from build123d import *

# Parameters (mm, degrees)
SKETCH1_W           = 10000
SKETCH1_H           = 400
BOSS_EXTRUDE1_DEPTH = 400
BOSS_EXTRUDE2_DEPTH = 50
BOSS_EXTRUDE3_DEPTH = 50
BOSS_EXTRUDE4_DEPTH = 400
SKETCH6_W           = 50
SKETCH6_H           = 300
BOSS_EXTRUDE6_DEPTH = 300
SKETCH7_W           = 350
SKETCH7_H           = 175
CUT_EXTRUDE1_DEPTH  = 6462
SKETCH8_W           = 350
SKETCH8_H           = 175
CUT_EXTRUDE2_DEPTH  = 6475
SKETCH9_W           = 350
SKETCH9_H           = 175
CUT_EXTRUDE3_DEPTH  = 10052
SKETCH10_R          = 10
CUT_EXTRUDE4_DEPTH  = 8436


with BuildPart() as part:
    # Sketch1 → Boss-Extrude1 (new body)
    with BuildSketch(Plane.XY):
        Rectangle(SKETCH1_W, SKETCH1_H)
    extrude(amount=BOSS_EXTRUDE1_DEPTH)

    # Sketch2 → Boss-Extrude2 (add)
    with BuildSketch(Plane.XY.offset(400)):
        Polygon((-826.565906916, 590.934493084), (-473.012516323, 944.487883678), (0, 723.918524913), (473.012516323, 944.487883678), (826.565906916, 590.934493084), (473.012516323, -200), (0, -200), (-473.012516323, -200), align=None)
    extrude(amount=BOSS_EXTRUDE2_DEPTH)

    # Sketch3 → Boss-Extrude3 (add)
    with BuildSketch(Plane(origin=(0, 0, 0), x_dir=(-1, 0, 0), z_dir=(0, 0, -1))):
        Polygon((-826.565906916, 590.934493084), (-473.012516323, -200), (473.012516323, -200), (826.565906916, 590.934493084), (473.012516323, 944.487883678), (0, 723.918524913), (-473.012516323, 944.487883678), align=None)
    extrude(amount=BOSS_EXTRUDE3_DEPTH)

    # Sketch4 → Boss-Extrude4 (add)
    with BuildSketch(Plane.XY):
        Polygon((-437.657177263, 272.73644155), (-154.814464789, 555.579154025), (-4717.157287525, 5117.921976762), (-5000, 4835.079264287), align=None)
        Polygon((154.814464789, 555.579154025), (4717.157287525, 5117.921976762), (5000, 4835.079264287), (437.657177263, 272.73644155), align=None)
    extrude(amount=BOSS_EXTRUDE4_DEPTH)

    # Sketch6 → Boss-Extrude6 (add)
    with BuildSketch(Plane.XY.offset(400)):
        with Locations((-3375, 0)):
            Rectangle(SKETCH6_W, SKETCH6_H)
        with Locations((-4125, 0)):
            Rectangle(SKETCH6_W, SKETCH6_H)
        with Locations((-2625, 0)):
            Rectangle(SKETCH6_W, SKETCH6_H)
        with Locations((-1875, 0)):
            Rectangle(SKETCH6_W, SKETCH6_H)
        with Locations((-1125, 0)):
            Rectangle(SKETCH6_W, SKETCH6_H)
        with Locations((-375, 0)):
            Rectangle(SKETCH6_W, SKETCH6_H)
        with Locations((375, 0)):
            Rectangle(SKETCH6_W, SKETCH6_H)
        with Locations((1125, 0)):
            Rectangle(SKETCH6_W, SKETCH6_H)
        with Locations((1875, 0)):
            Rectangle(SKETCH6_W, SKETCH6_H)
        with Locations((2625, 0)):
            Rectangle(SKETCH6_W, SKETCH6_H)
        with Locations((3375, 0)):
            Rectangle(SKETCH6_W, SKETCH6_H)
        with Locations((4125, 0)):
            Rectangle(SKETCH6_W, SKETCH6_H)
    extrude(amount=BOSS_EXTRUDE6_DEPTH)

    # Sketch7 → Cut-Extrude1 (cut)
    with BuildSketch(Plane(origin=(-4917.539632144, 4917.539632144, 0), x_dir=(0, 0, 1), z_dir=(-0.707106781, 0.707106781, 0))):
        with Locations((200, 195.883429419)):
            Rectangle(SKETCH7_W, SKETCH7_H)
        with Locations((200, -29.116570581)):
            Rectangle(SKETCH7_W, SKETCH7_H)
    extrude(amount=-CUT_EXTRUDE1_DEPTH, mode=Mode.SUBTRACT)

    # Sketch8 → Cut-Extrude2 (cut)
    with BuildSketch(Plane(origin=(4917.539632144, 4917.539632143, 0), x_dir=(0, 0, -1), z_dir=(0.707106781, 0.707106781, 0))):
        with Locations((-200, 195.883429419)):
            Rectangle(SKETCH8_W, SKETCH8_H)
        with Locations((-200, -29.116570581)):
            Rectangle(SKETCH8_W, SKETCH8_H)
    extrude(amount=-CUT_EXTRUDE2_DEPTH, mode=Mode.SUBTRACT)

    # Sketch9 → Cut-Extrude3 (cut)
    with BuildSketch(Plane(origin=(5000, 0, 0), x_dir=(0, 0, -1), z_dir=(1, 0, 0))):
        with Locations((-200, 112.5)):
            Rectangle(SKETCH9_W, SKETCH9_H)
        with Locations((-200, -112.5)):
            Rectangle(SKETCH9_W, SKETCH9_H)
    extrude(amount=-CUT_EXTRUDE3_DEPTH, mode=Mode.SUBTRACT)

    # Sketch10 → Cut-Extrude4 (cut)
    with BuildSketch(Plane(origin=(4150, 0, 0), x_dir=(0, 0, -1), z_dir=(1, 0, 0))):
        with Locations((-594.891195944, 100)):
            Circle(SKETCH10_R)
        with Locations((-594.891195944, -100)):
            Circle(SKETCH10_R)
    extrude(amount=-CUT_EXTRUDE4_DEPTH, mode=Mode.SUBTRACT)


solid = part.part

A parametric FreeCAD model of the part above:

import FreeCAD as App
import Part
import Sketcher
Q = App.Units.Quantity


def add_polygon(sketch, points):
    """Adds a closed chain of lines whose ends are joined by coincident constraints."""
    first, n = sketch.GeometryCount, len(points)
    for a, b in zip(points, points[1:] + points[:1]):
        sketch.addGeometry(Part.LineSegment(App.Vector(*a, 0), App.Vector(*b, 0)), False)
    for i in range(n):
        sketch.addConstraint(Sketcher.Constraint("Coincident", first + i, 2, first + (i + 1) % n, 1))

doc = App.newDocument("Part")
body = doc.addObject("PartDesign::Body", "Body")

# Sketch on XY plane
sketch1 = body.newObject("Sketcher::SketchObject", "Sketch")
sketch1.AttachmentSupport = (doc.getObject("XY_Plane"), [""])
sketch1.MapMode = "FlatFace"
add_polygon(sketch1, [(-5000, 200), (-5000, -200), (5000, -200), (5000, 200)])  # lines 0-3
sketch1.addConstraint([
    Sketcher.Constraint("Vertical", 0),
    Sketcher.Constraint("Horizontal", 1),
    Sketcher.Constraint("Vertical", 2),
    Sketcher.Constraint("Horizontal", 3),
    Sketcher.Constraint("Symmetric", 0, 2, 2, 2, -1, 1),
    Sketcher.Constraint("DistanceX", 1, 1, 1, 2, Q("10000 mm")),
    Sketcher.Constraint("DistanceY", 0, 2, 0, 1, Q("400 mm")),
])
pad1 = body.newObject("PartDesign::Pad", "Pad")
pad1.Profile = sketch1
pad1.Length = 400

# Sketch on XY plane
sketch2 = body.newObject("Sketcher::SketchObject", "Sketch001")
sketch2.AttachmentSupport = (doc.getObject("XY_Plane"), [""])
sketch2.MapMode = "FlatFace"
sketch2.AttachmentOffset = App.Placement(App.Vector(0, 0, 400), App.Rotation())
add_polygon(sketch2, [(-473, 944), (-827, 591), (-473, -200), (473, -200), (827, 591), (473, 944), (0, 724)])  # lines 0-6
sketch2.addConstraint([
    Sketcher.Constraint("Horizontal", 2),
    Sketcher.Constraint("Symmetric", 0, 2, 3, 2, -2),
    Sketcher.Constraint("Symmetric", 4, 2, 6, 2, -2),
    Sketcher.Constraint("PointOnObject", 5, 2, -2),
    Sketcher.Constraint("Perpendicular", 0, 4),
    Sketcher.Constraint("Vertical", 2, 2, 4, 2),
    Sketcher.Constraint("Vertical", 1, 2, 6, 2),
    Sketcher.Constraint("Angle", 5, Q("-155 deg")),
    Sketcher.Constraint("Distance", 0, Q("500 mm")),
    Sketcher.Constraint("DistanceY", 1, 2, -1, 1, Q("200 mm")),
    Sketcher.Constraint("DistanceX", 2, 1, 2, 2, Q("946.025033 mm")),
    Sketcher.Constraint("Distance", 1, Q("866.358686 mm")),
])
pad2 = body.newObject("PartDesign::Pad", "Pad001")
pad2.Profile = sketch2
pad2.Length = 50

# Sketch on XY plane
sketch3 = body.newObject("Sketcher::SketchObject", "Sketch002")
sketch3.AttachmentSupport = (doc.getObject("XY_Plane"), [""])
sketch3.MapMode = "FlatFace"
add_polygon(sketch3, [(827, 591), (473, -200), (-473, -200), (-827, 591), (-473, 944), (0, 724), (473, 944)])  # lines 0-6
sketch3.addConstraint([
    Sketcher.Constraint("Horizontal", 1),
    Sketcher.Constraint("Symmetric", 3, 2, 5, 2, -2),
    Sketcher.Constraint("Symmetric", 2, 2, 6, 2, -2),
    Sketcher.Constraint("PointOnObject", 4, 2, -2),
    Sketcher.Constraint("Perpendicular", 3, 6),
    Sketcher.Constraint("Vertical", 1, 2, 3, 2),
    Sketcher.Constraint("Vertical", 0, 2, 5, 2),
    Sketcher.Constraint("Angle", 4, Q("-25 deg")),
    Sketcher.Constraint("Distance", 3, Q("500 mm")),
    Sketcher.Constraint("DistanceY", 0, 2, -1, 1, Q("200 mm")),
    Sketcher.Constraint("DistanceX", 1, 2, 1, 1, Q("946.025033 mm")),
    Sketcher.Constraint("Distance", 0, Q("866.358686 mm")),
])
pad3 = body.newObject("PartDesign::Pad", "Pad002")
pad3.Profile = sketch3
pad3.Length = 50
pad3.Reversed = True

# Sketch on XY plane
sketch4 = body.newObject("Sketcher::SketchObject", "Sketch003")
sketch4.AttachmentSupport = (doc.getObject("XY_Plane"), [""])
sketch4.MapMode = "FlatFace"
add_polygon(sketch4, [(-438, 273), (-155, 556), (-4717, 5118), (-5000, 4835)])  # lines 0-3
add_polygon(sketch4, [(4717, 5118), (155, 556), (438, 273), (5000, 4835)])  # lines 4-7
sketch4.addConstraint([
    Sketcher.Constraint("Symmetric", 0, 2, 4, 2, -2),
    Sketcher.Constraint("Symmetric", 3, 2, 5, 2, -2),
    Sketcher.Constraint("Symmetric", 2, 2, 6, 2, -2),
    Sketcher.Constraint("Symmetric", 1, 2, 7, 2, -2),
    Sketcher.Constraint("Perpendicular", 0, 1),
    Sketcher.Constraint("Perpendicular", 1, 2),
    Sketcher.Constraint("Perpendicular", 2, 3),
    Sketcher.Constraint("Perpendicular", 3, 4),
    Sketcher.Constraint("Distance", 0, Q("400 mm")),
    Sketcher.Constraint("DistanceX", 2, 2, -1, 1, Q("5000 mm")),
    Sketcher.Constraint("DistanceY", -1, 1, 3, 2, Q("272.736442 mm")),
    Sketcher.Constraint("DistanceY", 0, 2, 2, 2, Q("4279.50011 mm")),
])
pad4 = body.newObject("PartDesign::Pad", "Pad003")
pad4.Profile = sketch4
pad4.Length = 400

# Sketch on XY plane
sketch5 = body.newObject("Sketcher::SketchObject", "Sketch004")
sketch5.AttachmentSupport = (doc.getObject("XY_Plane"), [""])
sketch5.MapMode = "FlatFace"
sketch5.AttachmentOffset = App.Placement(App.Vector(0, 0, 400), App.Rotation())
add_polygon(sketch5, [(-3400, 150), (-3400, -150), (-3350, -150), (-3350, 150)])  # lines 0-3
add_polygon(sketch5, [(-4150, 150), (-4150, -150), (-4100, -150), (-4100, 150)])  # lines 4-7
add_polygon(sketch5, [(-2650, 150), (-2650, -150), (-2600, -150), (-2600, 150)])  # lines 8-11
add_polygon(sketch5, [(-1900, 150), (-1900, -150), (-1850, -150), (-1850, 150)])  # lines 12-15
add_polygon(sketch5, [(-1150, 150), (-1150, -150), (-1100, -150), (-1100, 150)])  # lines 16-19
add_polygon(sketch5, [(-400, 150), (-400, -150), (-350, -150), (-350, 150)])  # lines 20-23
add_polygon(sketch5, [(350, 150), (350, -150), (400, -150), (400, 150)])  # lines 24-27
add_polygon(sketch5, [(1100, 150), (1100, -150), (1150, -150), (1150, 150)])  # lines 28-31
add_polygon(sketch5, [(1850, 150), (1850, -150), (1900, -150), (1900, 150)])  # lines 32-35
add_polygon(sketch5, [(2600, 150), (2600, -150), (2650, -150), (2650, 150)])  # lines 36-39
add_polygon(sketch5, [(3350, 150), (3350, -150), (3400, -150), (3400, 150)])  # lines 40-43
add_polygon(sketch5, [(4100, 150), (4100, -150), (4150, -150), (4150, 150)])  # lines 44-47
sketch5.addConstraint([
    Sketcher.Constraint("Vertical", 0),
    Sketcher.Constraint("Horizontal", 1),
    Sketcher.Constraint("Vertical", 2),
    Sketcher.Constraint("Horizontal", 3),
    Sketcher.Constraint("Vertical", 4),
    Sketcher.Constraint("Horizontal", 5),
    Sketcher.Constraint("Vertical", 6),
    Sketcher.Constraint("Horizontal", 7),
    Sketcher.Constraint("Vertical", 8),
    Sketcher.Constraint("Horizontal", 9),
    Sketcher.Constraint("Vertical", 10),
    Sketcher.Constraint("Horizontal", 11),
    Sketcher.Constraint("Vertical", 12),
    Sketcher.Constraint("Horizontal", 13),
    Sketcher.Constraint("Vertical", 14),
    Sketcher.Constraint("Horizontal", 15),
    Sketcher.Constraint("Vertical", 16),
    Sketcher.Constraint("Horizontal", 17),
    Sketcher.Constraint("Vertical", 18),
    Sketcher.Constraint("Horizontal", 19),
    Sketcher.Constraint("Vertical", 20),
    Sketcher.Constraint("Horizontal", 21),
    Sketcher.Constraint("Vertical", 22),
    Sketcher.Constraint("Horizontal", 23),
    Sketcher.Constraint("Vertical", 24),
    Sketcher.Constraint("Horizontal", 25),
    Sketcher.Constraint("Vertical", 26),
    Sketcher.Constraint("Horizontal", 27),
    Sketcher.Constraint("Vertical", 28),
    Sketcher.Constraint("Horizontal", 29),
    Sketcher.Constraint("Vertical", 30),
    Sketcher.Constraint("Horizontal", 31),
    Sketcher.Constraint("Vertical", 32),
    Sketcher.Constraint("Horizontal", 33),
    Sketcher.Constraint("Vertical", 34),
    Sketcher.Constraint("Horizontal", 35),
    Sketcher.Constraint("Vertical", 36),
    Sketcher.Constraint("Horizontal", 37),
    Sketcher.Constraint("Vertical", 38),
    Sketcher.Constraint("Horizontal", 39),
    Sketcher.Constraint("Vertical", 40),
    Sketcher.Constraint("Horizontal", 41),
    Sketcher.Constraint("Vertical", 42),
    Sketcher.Constraint("Horizontal", 43),
    Sketcher.Constraint("Vertical", 44),
    Sketcher.Constraint("Horizontal", 45),
    Sketcher.Constraint("Vertical", 46),
    Sketcher.Constraint("Horizontal", 47),
    Sketcher.Constraint("Symmetric", 22, 2, 24, 2, -1, 1),
    Sketcher.Constraint("Symmetric", 20, 2, 26, 2, -1, 1),
    Sketcher.Constraint("Symmetric", 18, 2, 28, 2, -1, 1),
    Sketcher.Constraint("Symmetric", 16, 2, 30, 2, -1, 1),
    Sketcher.Constraint("Symmetric", 14, 2, 32, 2, -1, 1),
    Sketcher.Constraint("Symmetric", 12, 2, 34, 2, -1, 1),
    Sketcher.Constraint("Symmetric", 10, 2, 36, 2, -1, 1),
    Sketcher.Constraint("Symmetric", 8, 2, 38, 2, -1, 1),
    Sketcher.Constraint("Symmetric", 2, 2, 40, 2, -1, 1),
    Sketcher.Constraint("Symmetric", 0, 2, 42, 2, -1, 1),
    Sketcher.Constraint("Symmetric", 6, 2, 44, 2, -1, 1),
    Sketcher.Constraint("Symmetric", 4, 2, 46, 2, -1, 1),
    Sketcher.Constraint("Horizontal", 1, 2, 4, 2),
    Sketcher.Constraint("Horizontal", 3, 2, 6, 2),
    Sketcher.Constraint("Horizontal", 5, 2, 8, 2),
    Sketcher.Constraint("Horizontal", 7, 2, 10, 2),
    Sketcher.Constraint("Horizontal", 9, 2, 12, 2),
    Sketcher.Constraint("Horizontal", 11, 2, 14, 2),
    Sketcher.Constraint("Horizontal", 13, 2, 16, 2),
    Sketcher.Constraint("Horizontal", 15, 2, 18, 2),
    Sketcher.Constraint("Horizontal", 17, 2, 20, 2),
    Sketcher.Constraint("Horizontal", 19, 2, 22, 2),
    Sketcher.Constraint("Horizontal", 21, 2, 24, 2),
    Sketcher.Constraint("Equal", 3, 5),
    Sketcher.Constraint("Equal", 7, 9),
    Sketcher.Constraint("Equal", 11, 13),
    Sketcher.Constraint("Equal", 15, 17),
    Sketcher.Constraint("Equal", 19, 21),
    Sketcher.Constraint("DistanceX", 1, 1, 1, 2, Q("50 mm")),
    Sketcher.Constraint("DistanceY", 0, 2, 0, 1, Q("300 mm")),
    Sketcher.Constraint("DistanceX", 0, 2, -1, 1, Q("3400 mm")),
    Sketcher.Constraint("DistanceX", 4, 2, -1, 1, Q("4150 mm")),
    Sketcher.Constraint("DistanceX", 8, 2, -1, 1, Q("2650 mm")),
    Sketcher.Constraint("DistanceX", 12, 2, -1, 1, Q("1900 mm")),
    Sketcher.Constraint("DistanceX", 16, 2, -1, 1, Q("1150 mm")),
    Sketcher.Constraint("DistanceX", 20, 2, -1, 1, Q("400 mm")),
])
pad5 = body.newObject("PartDesign::Pad", "Pad004")
pad5.Profile = sketch5
pad5.Length = 300

# Sketch on an angled plane
sketch6 = body.newObject("Sketcher::SketchObject", "Sketch005")
sketch6.Placement = App.Placement(App.Vector(-4917.539632, 4917.539632, 0), App.Rotation(App.Vector(0, 0, 1), App.Vector(0.707106781, 0.707106781, 0), App.Vector(-0.707106781, 0.707106781, 0), "ZXY"))
add_polygon(sketch6, [(25, 283), (25, 108), (375, 108), (375, 283)])  # lines 0-3
add_polygon(sketch6, [(25, 58), (25, -117), (375, -117), (375, 58)])  # lines 4-7
sketch6.addConstraint([
    Sketcher.Constraint("Vertical", 0),
    Sketcher.Constraint("Horizontal", 1),
    Sketcher.Constraint("Vertical", 2),
    Sketcher.Constraint("Horizontal", 3),
    Sketcher.Constraint("Vertical", 4),
    Sketcher.Constraint("Horizontal", 5),
    Sketcher.Constraint("Vertical", 6),
    Sketcher.Constraint("Horizontal", 7),
    Sketcher.Constraint("Vertical", 3, 2, 4, 2),
    Sketcher.Constraint("Vertical", 2, 2, 5, 2),
    Sketcher.Constraint("Equal", 2, 4),
    Sketcher.Constraint("DistanceX", 1, 1, 1, 2, Q("350 mm")),
    Sketcher.Constraint("DistanceY", 0, 2, 0, 1, Q("175 mm")),
    Sketcher.Constraint("DistanceX", -1, 1, 0, 2, Q("25 mm")),
    Sketcher.Constraint("DistanceY", 4, 2, 0, 2, Q("225 mm")),
    Sketcher.Constraint("DistanceY", -1, 1, 0, 2, Q("108.383429 mm")),
])
pocket1 = body.newObject("PartDesign::Pocket", "Pocket")
pocket1.Profile = sketch6
pocket1.Length = 6462

# Sketch on an angled plane
sketch7 = body.newObject("Sketcher::SketchObject", "Sketch006")
sketch7.Placement = App.Placement(App.Vector(4917.539632, 4917.539632, 0), App.Rotation(App.Vector(0, 0, -1), App.Vector(-0.707106781, 0.707106781, 0), App.Vector(0.707106781, 0.707106781, 0), "ZXY"))
add_polygon(sketch7, [(-375, 283), (-375, 108), (-25, 108), (-25, 283)])  # lines 0-3
add_polygon(sketch7, [(-375, 58), (-375, -117), (-25, -117), (-25, 58)])  # lines 4-7
sketch7.addConstraint([
    Sketcher.Constraint("Vertical", 0),
    Sketcher.Constraint("Horizontal", 1),
    Sketcher.Constraint("Vertical", 2),
    Sketcher.Constraint("Horizontal", 3),
    Sketcher.Constraint("Vertical", 4),
    Sketcher.Constraint("Horizontal", 5),
    Sketcher.Constraint("Vertical", 6),
    Sketcher.Constraint("Horizontal", 7),
    Sketcher.Constraint("Vertical", 3, 2, 4, 2),
    Sketcher.Constraint("Vertical", 2, 2, 5, 2),
    Sketcher.Constraint("Equal", 2, 4),
    Sketcher.Constraint("DistanceX", 1, 1, 1, 2, Q("350 mm")),
    Sketcher.Constraint("DistanceY", 0, 2, 0, 1, Q("175 mm")),
    Sketcher.Constraint("DistanceX", 0, 2, -1, 1, Q("375 mm")),
    Sketcher.Constraint("DistanceY", 4, 2, 0, 2, Q("225 mm")),
    Sketcher.Constraint("DistanceY", -1, 1, 0, 2, Q("108.383429 mm")),
])
pocket2 = body.newObject("PartDesign::Pocket", "Pocket001")
pocket2.Profile = sketch7
pocket2.Length = 6475

# Sketch on YZ plane
sketch8 = body.newObject("Sketcher::SketchObject", "Sketch007")
sketch8.AttachmentSupport = (doc.getObject("YZ_Plane"), [""])
sketch8.MapMode = "FlatFace"
sketch8.AttachmentOffset = App.Placement(App.Vector(0, 0, 5000), App.Rotation())
add_polygon(sketch8, [(200, 375), (25, 375), (25, 25), (200, 25)])  # lines 0-3
add_polygon(sketch8, [(-25, 375), (-200, 375), (-200, 25), (-25, 25)])  # lines 4-7
sketch8.addConstraint([
    Sketcher.Constraint("Horizontal", 0),
    Sketcher.Constraint("Vertical", 1),
    Sketcher.Constraint("Horizontal", 2),
    Sketcher.Constraint("Vertical", 3),
    Sketcher.Constraint("Horizontal", 4),
    Sketcher.Constraint("Vertical", 5),
    Sketcher.Constraint("Horizontal", 6),
    Sketcher.Constraint("Vertical", 7),
    Sketcher.Constraint("Symmetric", 3, 2, 4, 2, -2),
    Sketcher.Constraint("Symmetric", 1, 2, 6, 2, -2),
    Sketcher.Constraint("DistanceX", 0, 2, 0, 1, Q("175 mm")),
    Sketcher.Constraint("DistanceY", 1, 2, 1, 1, Q("350 mm")),
    Sketcher.Constraint("DistanceX", -1, 1, 0, 2, Q("25 mm")),
    Sketcher.Constraint("DistanceY", -1, 1, 0, 2, Q("375 mm")),
])
pocket3 = body.newObject("PartDesign::Pocket", "Pocket002")
pocket3.Profile = sketch8
pocket3.Length = 10052

# Sketch on YZ plane
sketch9 = body.newObject("Sketcher::SketchObject", "Sketch008")
sketch9.AttachmentSupport = (doc.getObject("YZ_Plane"), [""])
sketch9.MapMode = "FlatFace"
sketch9.AttachmentOffset = App.Placement(App.Vector(0, 0, 4150), App.Rotation())
sketch9.addGeometry([
    Part.Circle(App.Vector(100, 595, 0), App.Vector(0, 0, 1), 10),
    Part.Circle(App.Vector(-100, 595, 0), App.Vector(0, 0, 1), 10),
], False)
sketch9.addConstraint([
    Sketcher.Constraint("Equal", 0, 1),
    Sketcher.Constraint("Symmetric", 0, 3, 1, 3, -2),
    Sketcher.Constraint("Diameter", 0, Q("20 mm")),
    Sketcher.Constraint("DistanceX", -1, 1, 0, 3, Q("100 mm")),
    Sketcher.Constraint("DistanceY", -1, 1, 0, 3, Q("594.891196 mm")),
])
pocket4 = body.newObject("PartDesign::Pocket", "Pocket003")
pocket4.Profile = sketch9
pocket4.Length = 8436

doc.recompute()
